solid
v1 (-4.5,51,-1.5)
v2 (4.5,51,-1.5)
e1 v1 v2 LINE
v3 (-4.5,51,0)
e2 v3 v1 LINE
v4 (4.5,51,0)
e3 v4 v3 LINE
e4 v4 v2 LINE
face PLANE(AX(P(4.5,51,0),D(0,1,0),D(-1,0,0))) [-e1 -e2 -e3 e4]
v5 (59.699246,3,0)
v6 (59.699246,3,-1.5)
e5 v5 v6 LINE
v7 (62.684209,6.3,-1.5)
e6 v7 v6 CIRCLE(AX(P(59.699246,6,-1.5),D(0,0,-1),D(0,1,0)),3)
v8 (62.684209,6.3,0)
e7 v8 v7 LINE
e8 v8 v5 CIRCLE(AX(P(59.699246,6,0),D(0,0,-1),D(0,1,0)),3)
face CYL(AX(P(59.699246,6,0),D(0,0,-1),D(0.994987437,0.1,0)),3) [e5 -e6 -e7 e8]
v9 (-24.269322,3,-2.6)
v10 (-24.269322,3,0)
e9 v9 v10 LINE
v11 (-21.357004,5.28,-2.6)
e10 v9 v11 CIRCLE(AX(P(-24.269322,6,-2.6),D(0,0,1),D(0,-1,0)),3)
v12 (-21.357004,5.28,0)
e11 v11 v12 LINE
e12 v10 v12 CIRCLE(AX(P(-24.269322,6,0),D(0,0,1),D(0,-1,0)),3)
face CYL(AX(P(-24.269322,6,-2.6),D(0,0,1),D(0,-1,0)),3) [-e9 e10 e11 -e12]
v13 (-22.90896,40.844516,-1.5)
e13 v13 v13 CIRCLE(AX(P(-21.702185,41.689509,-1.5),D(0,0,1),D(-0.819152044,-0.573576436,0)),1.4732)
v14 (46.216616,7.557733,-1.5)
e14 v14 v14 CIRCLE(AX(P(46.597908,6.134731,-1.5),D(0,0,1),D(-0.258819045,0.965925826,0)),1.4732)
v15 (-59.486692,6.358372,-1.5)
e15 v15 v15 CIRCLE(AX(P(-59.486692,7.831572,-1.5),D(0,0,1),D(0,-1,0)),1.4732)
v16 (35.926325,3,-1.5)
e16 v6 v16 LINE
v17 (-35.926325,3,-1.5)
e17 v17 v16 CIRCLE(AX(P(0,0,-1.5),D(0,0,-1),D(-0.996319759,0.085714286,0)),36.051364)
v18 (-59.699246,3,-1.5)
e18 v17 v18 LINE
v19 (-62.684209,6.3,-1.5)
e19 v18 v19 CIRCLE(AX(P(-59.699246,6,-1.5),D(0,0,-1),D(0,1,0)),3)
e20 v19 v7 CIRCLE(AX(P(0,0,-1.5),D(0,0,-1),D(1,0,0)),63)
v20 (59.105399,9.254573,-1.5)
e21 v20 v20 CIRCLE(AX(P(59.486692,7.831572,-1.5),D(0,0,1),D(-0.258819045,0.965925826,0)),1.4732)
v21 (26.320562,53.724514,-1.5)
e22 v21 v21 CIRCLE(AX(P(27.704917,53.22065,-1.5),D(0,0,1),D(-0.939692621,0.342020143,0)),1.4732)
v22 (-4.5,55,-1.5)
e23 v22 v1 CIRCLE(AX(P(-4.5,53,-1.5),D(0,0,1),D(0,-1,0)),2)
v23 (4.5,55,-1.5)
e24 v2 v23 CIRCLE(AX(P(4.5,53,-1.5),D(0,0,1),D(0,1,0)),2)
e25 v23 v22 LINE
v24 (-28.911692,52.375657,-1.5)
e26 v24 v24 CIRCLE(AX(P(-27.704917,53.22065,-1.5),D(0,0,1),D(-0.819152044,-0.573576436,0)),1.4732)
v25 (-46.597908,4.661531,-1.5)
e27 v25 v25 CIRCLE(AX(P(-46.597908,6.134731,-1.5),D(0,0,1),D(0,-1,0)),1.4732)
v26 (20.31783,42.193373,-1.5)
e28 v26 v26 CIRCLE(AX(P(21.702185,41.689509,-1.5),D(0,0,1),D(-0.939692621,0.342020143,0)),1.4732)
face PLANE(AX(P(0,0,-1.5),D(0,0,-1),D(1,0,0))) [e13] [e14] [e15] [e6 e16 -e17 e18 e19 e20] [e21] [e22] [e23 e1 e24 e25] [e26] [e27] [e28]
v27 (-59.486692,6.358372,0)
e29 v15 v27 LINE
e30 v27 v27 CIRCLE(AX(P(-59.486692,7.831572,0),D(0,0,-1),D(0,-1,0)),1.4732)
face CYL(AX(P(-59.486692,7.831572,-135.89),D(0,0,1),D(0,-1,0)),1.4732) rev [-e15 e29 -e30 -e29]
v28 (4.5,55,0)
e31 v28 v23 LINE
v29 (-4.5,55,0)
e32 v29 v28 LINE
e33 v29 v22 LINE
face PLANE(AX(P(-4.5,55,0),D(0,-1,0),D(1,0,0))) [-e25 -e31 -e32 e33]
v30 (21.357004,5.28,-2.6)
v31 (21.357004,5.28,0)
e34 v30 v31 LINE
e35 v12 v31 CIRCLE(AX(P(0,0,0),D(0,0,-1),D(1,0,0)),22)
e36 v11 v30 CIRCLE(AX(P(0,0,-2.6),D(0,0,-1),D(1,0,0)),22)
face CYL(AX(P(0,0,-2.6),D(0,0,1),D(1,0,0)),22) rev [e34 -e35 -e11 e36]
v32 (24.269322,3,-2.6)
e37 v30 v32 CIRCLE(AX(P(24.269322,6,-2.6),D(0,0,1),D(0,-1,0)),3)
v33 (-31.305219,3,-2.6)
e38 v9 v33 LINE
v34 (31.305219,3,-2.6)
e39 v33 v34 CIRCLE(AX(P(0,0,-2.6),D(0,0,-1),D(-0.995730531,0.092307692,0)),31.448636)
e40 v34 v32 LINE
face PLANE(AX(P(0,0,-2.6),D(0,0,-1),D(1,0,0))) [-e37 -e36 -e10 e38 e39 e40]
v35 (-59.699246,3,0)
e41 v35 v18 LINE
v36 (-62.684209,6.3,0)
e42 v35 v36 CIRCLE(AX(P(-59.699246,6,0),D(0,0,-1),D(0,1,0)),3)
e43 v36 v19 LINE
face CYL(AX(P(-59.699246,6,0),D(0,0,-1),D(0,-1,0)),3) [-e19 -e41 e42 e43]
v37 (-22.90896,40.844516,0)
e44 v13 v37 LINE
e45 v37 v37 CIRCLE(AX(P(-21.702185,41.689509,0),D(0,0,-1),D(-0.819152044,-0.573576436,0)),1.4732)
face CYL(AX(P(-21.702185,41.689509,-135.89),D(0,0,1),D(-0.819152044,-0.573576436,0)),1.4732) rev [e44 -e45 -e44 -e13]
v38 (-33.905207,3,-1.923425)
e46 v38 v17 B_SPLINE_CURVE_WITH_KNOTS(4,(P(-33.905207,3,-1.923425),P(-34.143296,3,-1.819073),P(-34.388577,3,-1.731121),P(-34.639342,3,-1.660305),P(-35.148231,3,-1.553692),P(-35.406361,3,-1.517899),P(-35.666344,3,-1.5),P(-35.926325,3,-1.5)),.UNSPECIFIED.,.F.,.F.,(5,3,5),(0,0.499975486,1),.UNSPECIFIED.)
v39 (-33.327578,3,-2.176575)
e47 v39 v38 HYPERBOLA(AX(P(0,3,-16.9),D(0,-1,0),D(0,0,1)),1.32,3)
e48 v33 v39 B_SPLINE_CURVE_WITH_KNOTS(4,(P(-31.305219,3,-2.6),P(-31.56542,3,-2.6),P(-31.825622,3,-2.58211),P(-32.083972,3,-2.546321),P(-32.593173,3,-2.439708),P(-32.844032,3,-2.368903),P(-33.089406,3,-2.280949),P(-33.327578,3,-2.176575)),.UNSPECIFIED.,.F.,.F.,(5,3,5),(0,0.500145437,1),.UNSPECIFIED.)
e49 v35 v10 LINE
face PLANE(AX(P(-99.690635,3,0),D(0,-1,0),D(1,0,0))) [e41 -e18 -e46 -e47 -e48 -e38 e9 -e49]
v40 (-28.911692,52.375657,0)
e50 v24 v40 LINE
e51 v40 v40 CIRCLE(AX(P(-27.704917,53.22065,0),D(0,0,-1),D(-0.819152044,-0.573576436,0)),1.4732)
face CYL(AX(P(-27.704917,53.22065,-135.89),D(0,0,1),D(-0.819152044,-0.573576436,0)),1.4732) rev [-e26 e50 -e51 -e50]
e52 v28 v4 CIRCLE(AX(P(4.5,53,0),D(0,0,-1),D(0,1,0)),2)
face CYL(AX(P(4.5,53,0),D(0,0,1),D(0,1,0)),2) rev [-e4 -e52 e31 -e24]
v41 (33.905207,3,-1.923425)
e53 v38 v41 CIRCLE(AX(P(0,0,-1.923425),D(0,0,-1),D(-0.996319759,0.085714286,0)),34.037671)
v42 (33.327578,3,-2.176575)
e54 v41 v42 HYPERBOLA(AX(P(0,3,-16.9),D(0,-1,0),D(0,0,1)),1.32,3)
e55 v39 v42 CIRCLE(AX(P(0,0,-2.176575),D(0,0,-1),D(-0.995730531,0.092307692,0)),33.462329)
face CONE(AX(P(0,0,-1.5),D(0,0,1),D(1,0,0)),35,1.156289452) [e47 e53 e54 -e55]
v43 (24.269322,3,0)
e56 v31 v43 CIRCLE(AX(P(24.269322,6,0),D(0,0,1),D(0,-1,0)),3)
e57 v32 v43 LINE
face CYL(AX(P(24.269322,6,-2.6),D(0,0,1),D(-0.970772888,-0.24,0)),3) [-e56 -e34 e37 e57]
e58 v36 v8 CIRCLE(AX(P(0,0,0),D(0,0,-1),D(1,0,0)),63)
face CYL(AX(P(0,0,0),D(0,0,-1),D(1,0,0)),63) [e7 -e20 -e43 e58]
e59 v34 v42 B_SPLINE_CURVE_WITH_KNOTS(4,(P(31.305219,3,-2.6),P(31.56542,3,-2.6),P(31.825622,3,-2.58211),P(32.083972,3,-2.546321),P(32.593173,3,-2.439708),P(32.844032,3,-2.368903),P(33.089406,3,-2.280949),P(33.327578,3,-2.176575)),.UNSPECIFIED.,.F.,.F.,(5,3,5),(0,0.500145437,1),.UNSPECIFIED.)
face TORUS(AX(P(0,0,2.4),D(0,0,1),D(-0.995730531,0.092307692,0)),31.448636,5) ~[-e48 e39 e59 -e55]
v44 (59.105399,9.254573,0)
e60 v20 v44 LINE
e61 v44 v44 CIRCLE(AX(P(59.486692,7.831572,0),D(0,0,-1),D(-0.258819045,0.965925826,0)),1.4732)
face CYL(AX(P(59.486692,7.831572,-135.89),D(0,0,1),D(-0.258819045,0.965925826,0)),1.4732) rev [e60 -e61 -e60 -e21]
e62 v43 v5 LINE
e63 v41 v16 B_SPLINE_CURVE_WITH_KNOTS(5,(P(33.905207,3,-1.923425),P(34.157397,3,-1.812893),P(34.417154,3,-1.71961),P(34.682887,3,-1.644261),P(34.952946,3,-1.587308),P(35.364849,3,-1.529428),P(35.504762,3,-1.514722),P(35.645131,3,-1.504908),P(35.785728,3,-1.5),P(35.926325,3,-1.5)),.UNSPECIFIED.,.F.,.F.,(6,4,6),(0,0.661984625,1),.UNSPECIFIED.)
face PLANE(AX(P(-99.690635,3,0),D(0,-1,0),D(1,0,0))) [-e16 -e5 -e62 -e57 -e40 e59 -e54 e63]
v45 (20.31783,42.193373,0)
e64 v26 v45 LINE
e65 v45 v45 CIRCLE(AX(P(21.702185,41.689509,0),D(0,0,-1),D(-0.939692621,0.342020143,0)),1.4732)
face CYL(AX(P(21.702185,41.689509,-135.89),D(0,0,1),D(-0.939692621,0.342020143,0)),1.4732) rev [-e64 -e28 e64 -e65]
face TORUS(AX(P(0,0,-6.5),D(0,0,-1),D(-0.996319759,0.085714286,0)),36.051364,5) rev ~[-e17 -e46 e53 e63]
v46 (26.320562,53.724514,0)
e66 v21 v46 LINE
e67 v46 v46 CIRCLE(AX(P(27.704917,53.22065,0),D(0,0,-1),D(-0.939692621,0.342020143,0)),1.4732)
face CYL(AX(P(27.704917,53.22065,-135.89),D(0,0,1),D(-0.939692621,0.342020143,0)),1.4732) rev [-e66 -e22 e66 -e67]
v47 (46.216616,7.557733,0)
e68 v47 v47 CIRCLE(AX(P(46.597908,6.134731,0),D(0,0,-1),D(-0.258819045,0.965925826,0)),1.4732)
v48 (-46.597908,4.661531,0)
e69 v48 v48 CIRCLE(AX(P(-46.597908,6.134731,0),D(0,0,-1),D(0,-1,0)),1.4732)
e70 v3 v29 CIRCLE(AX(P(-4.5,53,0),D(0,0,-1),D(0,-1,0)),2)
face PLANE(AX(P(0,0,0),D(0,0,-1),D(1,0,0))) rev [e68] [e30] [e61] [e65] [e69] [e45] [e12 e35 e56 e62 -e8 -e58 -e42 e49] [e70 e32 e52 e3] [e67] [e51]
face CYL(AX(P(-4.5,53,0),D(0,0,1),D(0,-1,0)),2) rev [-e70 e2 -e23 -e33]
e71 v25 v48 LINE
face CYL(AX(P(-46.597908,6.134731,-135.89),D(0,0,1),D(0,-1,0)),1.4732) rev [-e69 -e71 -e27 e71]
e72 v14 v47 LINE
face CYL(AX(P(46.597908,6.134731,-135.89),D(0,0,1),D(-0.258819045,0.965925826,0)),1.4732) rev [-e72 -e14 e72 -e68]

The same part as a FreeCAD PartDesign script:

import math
import FreeCAD as App
import Part
import Sketcher
from FreeCAD import Vector
Q = App.Units.Quantity


def edges_at(feature, points):
    """Names of the edges that pass closest to the given points."""
    edges = feature.Shape.Edges
    near = lambda p: min(range(len(edges)), key=lambda i: edges[i].distToShape(Part.Vertex(*p))[0])
    return sorted({f"Edge{near(p) + 1}" for p in points})

doc = App.newDocument("Part")
params = doc.addObject("Spreadsheet::Sheet", "Params")
for row, (alias, value) in enumerate([
    ("sketch1_width", "41 mm"),
    ("sketch1_width2", "28 mm"),
    ("sketch1_width3", "10.5 mm"),
    ("sketch1_height", "2.6 mm"),
    ("sketch1_height2", "1.5 mm"),
    ("revolution_angle", "360 deg"),
    ("fillet_radius", "5 mm"),
    ("fillet2_radius", "3 mm"),
    ("sketch3_height", "135.89 mm"),
    ("groove_angle", "360 deg"),
    ("linearpattern_pitch", "13 mm"),
    ("sketch4_height", "135.89 mm"),
    ("groove2_angle", "360 deg"),
    ("sketch5_height", "135.89 mm"),
    ("groove3_angle", "360 deg"),
    ("sketch6_height", "135.89 mm"),
    ("groove4_angle", "360 deg"),
    ("sketch7_radius", "2 mm"),
    ("sketch7_width", "9 mm"),
], start=1):
    params.set(f"A{row}", alias)
    params.set(f"B{row}", "=" + value)
    params.setAlias(f"B{row}", alias)

body = doc.addObject("PartDesign::Body", "Body")

sketch1 = body.newObject("Sketcher::SketchObject", "Sketch")
sketch1.AttachmentSupport = (doc.getObject("YZ_Plane"), [""])
sketch1.MapMode = "FlatFace"
sketch1.addGeometry([
    Part.LineSegment(Vector(63, 0, 0), Vector(22, 0, 0)),
    Part.LineSegment(Vector(22, 0, 0), Vector(22, -2.6, 0)),
    Part.LineSegment(Vector(22, -2.6, 0), Vector(32.5, -2.6, 0)),
    Part.LineSegment(Vector(32.5, -2.6, 0), Vector(35, -1.5, 0)),
    Part.LineSegment(Vector(35, -1.5, 0), Vector(63, -1.5, 0)),
    Part.LineSegment(Vector(63, -1.5, 0), Vector(63, 0, 0)),
], False)
sketch1.addConstraint([
    Sketcher.Constraint("Coincident", 0, 2, 1, 1),
    Sketcher.Constraint("Coincident", 1, 2, 2, 1),
    Sketcher.Constraint("Coincident", 2, 2, 3, 1),
    Sketcher.Constraint("Coincident", 3, 2, 4, 1),
    Sketcher.Constraint("Coincident", 4, 2, 5, 1),
    Sketcher.Constraint("Coincident", 5, 2, 0, 1),
    Sketcher.Constraint("Horizontal", 0),
    Sketcher.Constraint("Vertical", 1),
    Sketcher.Constraint("Horizontal", 2),
    Sketcher.Constraint("Horizontal", 4),
    Sketcher.Constraint("Vertical", 5),
    Sketcher.Constraint("PointOnObject", 0, 2, -1),
    Sketcher.Constraint("DistanceX", 0, 2, 0, 1, Q("41 mm")),
    Sketcher.Constraint("DistanceX", 4, 1, 4, 2, Q("28 mm")),
    Sketcher.Constraint("DistanceX", 2, 1, 2, 2, Q("10.5 mm")),
    Sketcher.Constraint("DistanceY", 1, 2, 1, 1, Q("2.6 mm")),
    Sketcher.Constraint("DistanceY", 5, 1, 5, 2, Q("1.5 mm")),
    Sketcher.Constraint("DistanceX", -1, 1, 0, 2, Q("22 mm")),
])
sketch1.setExpression("Constraints[12]", "Params.sketch1_width")
sketch1.setExpression("Constraints[13]", "Params.sketch1_width2")
sketch1.setExpression("Constraints[14]", "Params.sketch1_width3")
sketch1.setExpression("Constraints[15]", "Params.sketch1_height")
sketch1.setExpression("Constraints[16]", "Params.sketch1_height2")
revolution = body.newObject("PartDesign::Revolution", "Revolution")
revolution.Profile = sketch1
revolution.ReferenceAxis = (sketch1, ["V_Axis"])
revolution.setExpression("Angle", "Params.revolution_angle")

sketch2 = body.newObject("Sketcher::SketchObject", "Sketch001")
sketch2.AttachmentSupport = (doc.getObject("XY_Plane"), [""])
sketch2.MapMode = "FlatFace"
sketch2.addGeometry([
    Part.LineSegment(Vector(-99.690635, 3, 0), Vector(-99.690635, -100.321257, 0)),
    Part.LineSegment(Vector(-99.690635, -100.321257, 0), Vector(98.309395, -100.321257, 0)),
    Part.LineSegment(Vector(98.309395, -100.321257, 0), Vector(98.309395, 3, 0)),
    Part.LineSegment(Vector(98.309395, 3, 0), Vector(-99.690635, 3, 0)),
], False)
sketch2.addConstraint([
    Sketcher.Constraint("Coincident", 0, 2, 1, 1),
    Sketcher.Constraint("Coincident", 1, 2, 2, 1),
    Sketcher.Constraint("Coincident", 2, 2, 3, 1),
    Sketcher.Constraint("Coincident", 3, 2, 0, 1),
    Sketcher.Constraint("Vertical", 0),
    Sketcher.Constraint("Horizontal", 1),
    Sketcher.Constraint("Vertical", 2),
    Sketcher.Constraint("Horizontal", 3),
    Sketcher.Constraint("DistanceY", -1, 1, 2, 2, Q("3 mm")),
    Sketcher.Constraint("DistanceX", 1, 1, 1, 2, Q("198.000031 mm")),
    Sketcher.Constraint("DistanceY", 0, 2, 0, 1, Q("103.321257 mm")),
    Sketcher.Constraint("DistanceX", 0, 2, -1, 1, Q("99.690635 mm")),
])
pocket1 = body.newObject("PartDesign::Pocket", "Pocket")
pocket1.Profile = sketch2
pocket1.Type = "ThroughAll"
doc.recompute()

fillet = body.newObject("PartDesign::Fillet", "Fillet")
fillet.Base = (pocket1, edges_at(pocket1, [(0, 32.5, -2.6), (0, 35, -1.5)]))
fillet.setExpression("Radius", "Params.fillet_radius")
doc.recompute()

fillet2 = body.newObject("PartDesign::Fillet", "Fillet001")
fillet2.Base = (fillet, edges_at(fillet, [
    (-21.794, 3, -1.3),
    (-62.929, 3, -0.75),
    (21.794, 3, -1.3),
    (62.929, 3, -0.75),
]))
fillet2.setExpression("Radius", "Params.fillet2_radius")

sketch3 = body.newObject("Sketcher::SketchObject", "Sketch002")
sketch3.AttachmentSupport = (doc.getObject("YZ_Plane"), [""])
sketch3.MapMode = "FlatFace"
sketch3.AttachmentOffset = App.Placement(Vector(0, 0, -59.486692), App.Rotation())
sketch3.addGeometry([
    Part.LineSegment(Vector(7.831572, -136.775188, 0), Vector(7.831572, 0, 0)),
    Part.LineSegment(Vector(7.831572, 0, 0), Vector(6.358372, 0, 0)),
    Part.LineSegment(Vector(6.358372, 0, 0), Vector(6.358372, -135.89, 0)),
    Part.LineSegment(Vector(6.358372, -135.89, 0), Vector(7.831572, -136.775188, 0)),
], False)
sketch3.addGeometry(Part.LineSegment(Vector(7.831572, 0, 0), Vector(7.831572, -136.775188, 0)), True)
sketch3.addConstraint([
    Sketcher.Constraint("Coincident", 0, 2, 1, 1),
    Sketcher.Constraint("Coincident", 1, 2, 2, 1),
    Sketcher.Constraint("Coincident", 2, 2, 3, 1),
    Sketcher.Constraint("Coincident", 3, 2, 0, 1),
    Sketcher.Constraint("Vertical", 0),
    Sketcher.Constraint("Horizontal", 1),
    Sketcher.Constraint("Vertical", 2),
    Sketcher.Constraint("Vertical", 4),
    Sketcher.Constraint("Coincident", 4, 1, 0, 2),
    Sketcher.Constraint("PointOnObject", 0, 2, -1),
    Sketcher.Constraint("Equal", 0, 4),
    Sketcher.Constraint("Angle", 3, Q("-31 deg")),
    Sketcher.Constraint("DistanceY", 2, 2, 2, 1, Q("135.89 mm")),
    Sketcher.Constraint("DistanceX", 1, 2, 1, 1, Q("1.4732 mm")),
    Sketcher.Constraint("DistanceX", -1, 1, 0, 2, Q("7.831572 mm")),
])
sketch3.setExpression("Constraints[12]", "Params.sketch3_height")
groove = body.newObject("PartDesign::Groove", "Groove")
groove.Profile = sketch3
groove.ReferenceAxis = (sketch3, ["Axis0"])
groove.setExpression("Angle", "Params.groove_angle")
doc.recompute()

datumline = body.newObject("PartDesign::Line", "DatumLine")
datumline.Placement = App.Placement(Vector(0, 0, 0), App.Rotation(Vector(0, 0, 1), Vector(0.991444861, -0.130526192, 0)))
linearpattern = body.newObject("PartDesign::LinearPattern", "LinearPattern")
linearpattern.Originals = [groove]
linearpattern.Direction = (datumline, [""])
linearpattern.Mode = "offset"
linearpattern.setExpression("Offset", "Params.linearpattern_pitch")
linearpattern.Occurrences = 2
body.Tip = linearpattern
doc.recompute()

polarpattern = body.newObject("PartDesign::PolarPattern", "PolarPattern")
polarpattern.Originals = [groove]
polarpattern.Axis = (doc.getObject("Z_Axis"), [""])
polarpattern.Angle = 165
polarpattern.Occurrences = 4
polarpattern.Reversed = True
body.Tip = polarpattern

sketch4 = body.newObject("Sketcher::SketchObject", "Sketch003")
sketch4.Placement = App.Placement(Vector(-21.702185, 41.689509, 0), App.Rotation(Vector(-0.819152044, -0.573576436, 0), Vector(0, 0, -0.999999999), Vector(0.573576436, -0.819152044, 0), "ZXY"))
sketch4.addGeometry([
    Part.LineSegment(Vector(0, 136.775188, 0), Vector(0, 0, 0)),
    Part.LineSegment(Vector(0, 0, 0), Vector(1.4732, 0, 0)),
    Part.LineSegment(Vector(1.4732, 0, 0), Vector(1.4732, 135.89, 0)),
    Part.LineSegment(Vector(1.4732, 135.89, 0), Vector(0, 136.775188, 0)),
], False)
sketch4.addConstraint([
    Sketcher.Constraint("Coincident", 0, 2, 1, 1),
    Sketcher.Constraint("Coincident", 1, 2, 2, 1),
    Sketcher.Constraint("Coincident", 2, 2, 3, 1),
    Sketcher.Constraint("Coincident", 3, 2, 0, 1),
    Sketcher.Constraint("Vertical", 0),
    Sketcher.Constraint("Horizontal", 1),
    Sketcher.Constraint("Vertical", 2),
    Sketcher.Constraint("Coincident", 0, 2, -1, 1),
    Sketcher.Constraint("Angle", 3, Q("149 deg")),
    Sketcher.Constraint("DistanceY", 2, 1, 2, 2, Q("135.89 mm")),
    Sketcher.Constraint("DistanceX", 1, 1, 1, 2, Q("1.4732 mm")),
])
sketch4.setExpression("Constraints[9]", "Params.sketch4_height")
groove2 = body.newObject("PartDesign::Groove", "Groove001")
groove2.Profile = sketch4
groove2.ReferenceAxis = (sketch4, ["V_Axis"])
groove2.setExpression("Angle", "Params.groove2_angle")

sketch5 = body.newObject("Sketcher::SketchObject", "Sketch004")
sketch5.Placement = App.Placement(Vector(21.702185, 41.689509, 0), App.Rotation(Vector(-0.939692621, 0.342020143, 0), Vector(0, 0, -1), Vector(-0.342020143, -0.939692621, 0), "ZXY"))
sketch5.addGeometry([
    Part.LineSegment(Vector(0, 136.775188, 0), Vector(0, 0, 0)),
    Part.LineSegment(Vector(0, 0, 0), Vector(1.4732, 0, 0)),
    Part.LineSegment(Vector(1.4732, 0, 0), Vector(1.4732, 135.89, 0)),
    Part.LineSegment(Vector(1.4732, 135.89, 0), Vector(0, 136.775188, 0)),
], False)
sketch5.addConstraint([
    Sketcher.Constraint("Coincident", 0, 2, 1, 1),
    Sketcher.Constraint("Coincident", 1, 2, 2, 1),
    Sketcher.Constraint("Coincident", 2, 2, 3, 1),
    Sketcher.Constraint("Coincident", 3, 2, 0, 1),
    Sketcher.Constraint("Vertical", 0),
    Sketcher.Constraint("Horizontal", 1),
    Sketcher.Constraint("Vertical", 2),
    Sketcher.Constraint("Coincident", 0, 2, -1, 1),
    Sketcher.Constraint("Angle", 3, Q("149 deg")),
    Sketcher.Constraint("DistanceY", 2, 1, 2, 2, Q("135.89 mm")),
    Sketcher.Constraint("DistanceX", 1, 1, 1, 2, Q("1.4732 mm")),
])
sketch5.setExpression("Constraints[9]", "Params.sketch5_height")
groove3 = body.newObject("PartDesign::Groove", "Groove002")
groove3.Profile = sketch5
groove3.ReferenceAxis = (sketch5, ["V_Axis"])
groove3.setExpression("Angle", "Params.groove3_angle")

sketch6 = body.newObject("Sketcher::SketchObject", "Sketch005")
sketch6.Placement = App.Placement(Vector(46.597908, 6.134731, 0), App.Rotation(Vector(-0.258819045, 0.965925826, 0), Vector(0, 0, -0.999999999), Vector(-0.965925826, -0.258819045, 0), "ZXY"))
sketch6.addGeometry([
    Part.LineSegment(Vector(0, 136.775188, 0), Vector(0, 0, 0)),
    Part.LineSegment(Vector(0, 0, 0), Vector(1.4732, 0, 0)),
    Part.LineSegment(Vector(1.4732, 0, 0), Vector(1.4732, 135.89, 0)),
    Part.LineSegment(Vector(1.4732, 135.89, 0), Vector(0, 136.775188, 0)),
], False)
sketch6.addConstraint([
    Sketcher.Constraint("Coincident", 0, 2, 1, 1),
    Sketcher.Constraint("Coincident", 1, 2, 2, 1),
    Sketcher.Constraint("Coincident", 2, 2, 3, 1),
    Sketcher.Constraint("Coincident", 3, 2, 0, 1),
    Sketcher.Constraint("Vertical", 0),
    Sketcher.Constraint("Horizontal", 1),
    Sketcher.Constraint("Vertical", 2),
    Sketcher.Constraint("Coincident", 0, 2, -1, 1),
    Sketcher.Constraint("Angle", 3, Q("149 deg")),
    Sketcher.Constraint("DistanceY", 2, 1, 2, 2, Q("135.89 mm")),
    Sketcher.Constraint("DistanceX", 1, 1, 1, 2, Q("1.4732 mm")),
])
sketch6.setExpression("Constraints[9]", "Params.sketch6_height")
groove4 = body.newObject("PartDesign::Groove", "Groove003")
groove4.Profile = sketch6
groove4.ReferenceAxis = (sketch6, ["V_Axis"])
groove4.setExpression("Angle", "Params.groove4_angle")

sketch7 = body.newObject("Sketcher::SketchObject", "Sketch006")
sketch7.AttachmentSupport = (doc.getObject("XY_Plane"), [""])
sketch7.MapMode = "FlatFace"
sketch7.addGeometry([
    Part.LineSegment(Vector(4.5, 55, 0), Vector(-4.5, 55, 0)),
    Part.ArcOfCircle(Part.Circle(Vector(-4.5, 53, 0), Vector(0, 0, 1), 2), math.radians(90), math.radians(270)),
    Part.LineSegment(Vector(-4.5, 51, 0), Vector(4.5, 51, 0)),
    Part.ArcOfCircle(Part.Circle(Vector(4.5, 53, 0), Vector(0, 0, 1), 2), math.radians(-90), math.radians(90)),
], False)
sketch7.addConstraint([
    Sketcher.Constraint("Tangent", 0, 2, 1, 1),
    Sketcher.Constraint("Tangent", 1, 2, 2, 1),
    Sketcher.Constraint("Tangent", 2, 2, 3, 1),
    Sketcher.Constraint("Tangent", 3, 2, 0, 1),
    Sketcher.Constraint("Horizontal", 0),
    Sketcher.Constraint("Horizontal", 2),
    Sketcher.Constraint("Radius", 1, Q("2 mm")),
    Sketcher.Constraint("DistanceX", 0, 2, 0, 1, Q("9 mm")),
    Sketcher.Constraint("DistanceY", -1, 1, 1, 3, Q("53 mm")),
    Sketcher.Constraint("DistanceX", 1, 3, -1, 1, Q("4.5 mm")),
])
sketch7.setExpression("Constraints[6]", "Params.sketch7_radius")
sketch7.setExpression("Constraints[7]", "Params.sketch7_width")
pocket2 = body.newObject("PartDesign::Pocket", "Pocket001")
pocket2.Profile = sketch7
pocket2.Type = "ThroughAll"

doc.recompute()
